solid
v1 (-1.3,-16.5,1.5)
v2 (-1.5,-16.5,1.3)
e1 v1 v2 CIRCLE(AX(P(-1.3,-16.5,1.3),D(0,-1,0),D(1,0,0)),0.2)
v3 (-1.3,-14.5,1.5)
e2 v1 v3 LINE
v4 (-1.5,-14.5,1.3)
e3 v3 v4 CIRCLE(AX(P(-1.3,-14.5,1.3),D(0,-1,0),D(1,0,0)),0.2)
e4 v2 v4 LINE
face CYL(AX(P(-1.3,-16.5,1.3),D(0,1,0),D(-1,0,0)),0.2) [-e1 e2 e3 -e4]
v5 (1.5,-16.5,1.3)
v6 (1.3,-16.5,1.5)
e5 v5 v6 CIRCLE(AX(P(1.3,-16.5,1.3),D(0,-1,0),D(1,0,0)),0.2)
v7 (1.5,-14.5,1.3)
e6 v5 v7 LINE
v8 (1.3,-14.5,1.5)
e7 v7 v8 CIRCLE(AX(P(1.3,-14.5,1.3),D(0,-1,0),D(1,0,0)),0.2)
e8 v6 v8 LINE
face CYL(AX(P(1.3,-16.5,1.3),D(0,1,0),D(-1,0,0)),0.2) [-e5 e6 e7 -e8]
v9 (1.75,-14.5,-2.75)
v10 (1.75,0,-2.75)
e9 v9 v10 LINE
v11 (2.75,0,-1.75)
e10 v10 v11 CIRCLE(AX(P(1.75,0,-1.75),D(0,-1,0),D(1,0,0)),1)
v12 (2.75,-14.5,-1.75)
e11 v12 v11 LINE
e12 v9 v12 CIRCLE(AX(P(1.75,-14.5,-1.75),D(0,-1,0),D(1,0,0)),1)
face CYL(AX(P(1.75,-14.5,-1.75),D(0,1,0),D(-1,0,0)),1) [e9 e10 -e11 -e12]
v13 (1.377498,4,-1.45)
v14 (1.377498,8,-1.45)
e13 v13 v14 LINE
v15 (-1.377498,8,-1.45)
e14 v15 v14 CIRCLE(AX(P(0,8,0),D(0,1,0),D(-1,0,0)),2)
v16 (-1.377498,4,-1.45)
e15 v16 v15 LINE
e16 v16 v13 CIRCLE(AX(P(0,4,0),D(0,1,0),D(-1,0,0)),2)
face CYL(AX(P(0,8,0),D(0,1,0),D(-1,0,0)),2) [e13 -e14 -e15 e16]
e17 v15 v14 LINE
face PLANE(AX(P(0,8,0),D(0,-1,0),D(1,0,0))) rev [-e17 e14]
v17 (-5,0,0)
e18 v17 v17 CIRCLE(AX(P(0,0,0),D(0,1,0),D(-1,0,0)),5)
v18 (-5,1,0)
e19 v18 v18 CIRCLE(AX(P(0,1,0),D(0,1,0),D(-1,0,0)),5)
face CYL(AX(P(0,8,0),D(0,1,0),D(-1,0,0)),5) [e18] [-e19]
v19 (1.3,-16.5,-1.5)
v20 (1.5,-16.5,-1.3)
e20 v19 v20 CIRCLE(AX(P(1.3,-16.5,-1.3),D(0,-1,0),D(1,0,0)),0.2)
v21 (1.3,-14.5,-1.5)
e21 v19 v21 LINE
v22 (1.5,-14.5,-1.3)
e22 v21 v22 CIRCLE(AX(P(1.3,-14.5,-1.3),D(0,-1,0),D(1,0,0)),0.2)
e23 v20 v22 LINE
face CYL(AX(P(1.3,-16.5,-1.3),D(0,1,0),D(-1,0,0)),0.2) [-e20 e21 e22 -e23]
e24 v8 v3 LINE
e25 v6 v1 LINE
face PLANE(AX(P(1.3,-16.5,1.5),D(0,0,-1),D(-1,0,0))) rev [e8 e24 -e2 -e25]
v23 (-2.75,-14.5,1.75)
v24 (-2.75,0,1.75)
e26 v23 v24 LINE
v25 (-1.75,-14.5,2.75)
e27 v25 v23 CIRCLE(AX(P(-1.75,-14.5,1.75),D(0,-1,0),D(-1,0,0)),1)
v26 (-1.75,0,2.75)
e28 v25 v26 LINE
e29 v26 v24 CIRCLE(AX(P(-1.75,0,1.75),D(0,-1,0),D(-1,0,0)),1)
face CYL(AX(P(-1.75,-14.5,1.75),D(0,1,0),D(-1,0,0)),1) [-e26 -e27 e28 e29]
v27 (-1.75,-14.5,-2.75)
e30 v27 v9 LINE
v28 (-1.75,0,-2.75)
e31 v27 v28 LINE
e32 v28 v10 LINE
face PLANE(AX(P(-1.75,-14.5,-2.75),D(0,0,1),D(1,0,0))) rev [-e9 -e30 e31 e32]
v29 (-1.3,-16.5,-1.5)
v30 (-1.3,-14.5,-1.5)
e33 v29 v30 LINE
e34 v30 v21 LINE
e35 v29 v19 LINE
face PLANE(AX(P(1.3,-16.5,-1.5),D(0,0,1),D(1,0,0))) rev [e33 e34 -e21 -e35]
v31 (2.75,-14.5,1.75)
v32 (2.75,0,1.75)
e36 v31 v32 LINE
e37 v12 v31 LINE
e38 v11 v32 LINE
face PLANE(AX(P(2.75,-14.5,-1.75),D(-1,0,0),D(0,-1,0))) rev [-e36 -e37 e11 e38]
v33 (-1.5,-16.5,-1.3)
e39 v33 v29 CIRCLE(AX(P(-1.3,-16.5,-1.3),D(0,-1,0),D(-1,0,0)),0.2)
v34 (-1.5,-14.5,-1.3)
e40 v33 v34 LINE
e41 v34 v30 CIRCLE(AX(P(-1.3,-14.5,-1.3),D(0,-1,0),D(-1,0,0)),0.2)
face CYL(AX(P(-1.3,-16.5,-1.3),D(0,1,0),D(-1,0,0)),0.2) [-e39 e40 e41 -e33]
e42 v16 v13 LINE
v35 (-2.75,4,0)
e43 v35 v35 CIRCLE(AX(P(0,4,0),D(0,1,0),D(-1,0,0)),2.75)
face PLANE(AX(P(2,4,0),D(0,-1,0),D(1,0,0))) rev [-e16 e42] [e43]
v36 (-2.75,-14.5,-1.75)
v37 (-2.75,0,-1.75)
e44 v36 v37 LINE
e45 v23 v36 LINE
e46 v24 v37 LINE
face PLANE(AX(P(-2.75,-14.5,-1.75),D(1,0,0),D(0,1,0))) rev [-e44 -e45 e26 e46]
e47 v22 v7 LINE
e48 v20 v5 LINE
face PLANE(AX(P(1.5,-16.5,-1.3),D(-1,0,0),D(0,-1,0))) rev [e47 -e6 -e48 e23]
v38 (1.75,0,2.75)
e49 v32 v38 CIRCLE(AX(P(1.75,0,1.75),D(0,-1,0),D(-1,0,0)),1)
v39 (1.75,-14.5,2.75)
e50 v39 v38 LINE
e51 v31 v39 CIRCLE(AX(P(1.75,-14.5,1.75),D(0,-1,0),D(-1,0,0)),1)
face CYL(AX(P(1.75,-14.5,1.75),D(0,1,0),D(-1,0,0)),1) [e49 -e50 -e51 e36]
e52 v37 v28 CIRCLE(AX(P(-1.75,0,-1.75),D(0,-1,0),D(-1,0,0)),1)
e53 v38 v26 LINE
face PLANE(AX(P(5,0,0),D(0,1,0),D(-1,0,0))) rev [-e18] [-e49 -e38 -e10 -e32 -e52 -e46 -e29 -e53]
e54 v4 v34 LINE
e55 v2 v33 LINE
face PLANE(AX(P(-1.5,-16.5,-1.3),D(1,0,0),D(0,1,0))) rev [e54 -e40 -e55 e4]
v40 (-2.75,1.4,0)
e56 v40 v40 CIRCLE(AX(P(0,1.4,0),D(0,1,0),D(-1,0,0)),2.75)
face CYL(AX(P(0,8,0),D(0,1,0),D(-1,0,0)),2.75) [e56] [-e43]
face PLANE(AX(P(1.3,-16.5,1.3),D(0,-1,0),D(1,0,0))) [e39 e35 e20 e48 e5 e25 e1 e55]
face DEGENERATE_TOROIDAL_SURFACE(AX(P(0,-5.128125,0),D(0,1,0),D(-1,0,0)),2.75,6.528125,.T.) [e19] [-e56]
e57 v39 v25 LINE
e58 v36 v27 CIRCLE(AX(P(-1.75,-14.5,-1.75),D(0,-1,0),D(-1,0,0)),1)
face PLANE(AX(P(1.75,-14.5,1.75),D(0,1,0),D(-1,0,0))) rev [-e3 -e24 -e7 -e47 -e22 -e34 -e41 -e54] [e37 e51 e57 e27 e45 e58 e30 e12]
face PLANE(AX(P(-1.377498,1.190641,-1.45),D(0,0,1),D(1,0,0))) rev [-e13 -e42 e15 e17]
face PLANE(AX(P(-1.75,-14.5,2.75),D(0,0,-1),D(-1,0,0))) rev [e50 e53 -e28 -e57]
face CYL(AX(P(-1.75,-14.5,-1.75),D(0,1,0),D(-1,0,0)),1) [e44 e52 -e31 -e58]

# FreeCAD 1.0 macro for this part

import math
import FreeCAD as App
import Part
import Sketcher
from FreeCAD import Vector

doc = App.newDocument("Part")
body = doc.addObject("PartDesign::Body", "Body")

# Sketch on XY plane
sketch1 = body.newObject("Sketcher::SketchObject", "Sketch")
sketch1.AttachmentSupport = (doc.getObject("XY_Plane"), [""])
sketch1.MapMode = "FlatFace"
sketch1.addGeometry(Part.LineSegment(Vector(2, 8, 0), Vector(0, 8, 0)), False)
sketch1.addGeometry(Part.LineSegment(Vector(0, 8, 0), Vector(0, 0, 0)), False)
sketch1.addGeometry(Part.LineSegment(Vector(0, 0, 0), Vector(5, 0, 0)), False)
sketch1.addGeometry(Part.LineSegment(Vector(5, 0, 0), Vector(5, 1, 0)), False)
sketch1.addGeometry(Part.ArcOfCircle(Part.Circle(Vector(2.7, -5.1, 0), Vector(0, 0, 1), 6.5), math.radians(70), math.radians(90)), False)
sketch1.addGeometry(Part.LineSegment(Vector(2.8, 1.4, 0), Vector(2.8, 4, 0)), False)
sketch1.addGeometry(Part.LineSegment(Vector(2.8, 4, 0), Vector(2, 4, 0)), False)
sketch1.addGeometry(Part.LineSegment(Vector(2, 4, 0), Vector(2, 8, 0)), False)
sketch1.addConstraint(Sketcher.Constraint("Coincident", 0, 2, 1, 1))
sketch1.addConstraint(Sketcher.Constraint("Coincident", 1, 2, 2, 1))
sketch1.addConstraint(Sketcher.Constraint("Coincident", 2, 2, 3, 1))
sketch1.addConstraint(Sketcher.Constraint("Coincident", 3, 2, 4, 1))
sketch1.addConstraint(Sketcher.Constraint("Coincident", 4, 2, 5, 1))
sketch1.addConstraint(Sketcher.Constraint("Coincident", 5, 2, 6, 1))
sketch1.addConstraint(Sketcher.Constraint("Coincident", 6, 2, 7, 1))
sketch1.addConstraint(Sketcher.Constraint("Coincident", 7, 2, 0, 1))
sketch1.addConstraint(Sketcher.Constraint("Horizontal", 0))
sketch1.addConstraint(Sketcher.Constraint("Vertical", 1))
sketch1.addConstraint(Sketcher.Constraint("Horizontal", 2))
sketch1.addConstraint(Sketcher.Constraint("Vertical", 3))
sketch1.addConstraint(Sketcher.Constraint("Vertical", 5))
sketch1.addConstraint(Sketcher.Constraint("Horizontal", 6))
sketch1.addConstraint(Sketcher.Constraint("Vertical", 7))
sketch1.addConstraint(Sketcher.Constraint("Coincident", 1, 2, -1, 1))
sketch1.addConstraint(Sketcher.Constraint("DistanceX", 0, 2, 0, 1, 2.0))
sketch1.addConstraint(Sketcher.Constraint("DistanceX", 2, 1, 2, 2, 5.0))
sketch1.addConstraint(Sketcher.Constraint("DistanceY", 1, 2, 1, 1, 8.0))
sketch1.addConstraint(Sketcher.Constraint("DistanceY", 3, 1, 3, 2, 1.0))
sketch1.addConstraint(Sketcher.Constraint("DistanceY", 7, 1, 7, 2, 4.0))
sketch1.addConstraint(Sketcher.Constraint("DistanceY", 5, 1, 5, 2, 2.6))
sketch1.addConstraint(Sketcher.Constraint("DistanceX", 6, 2, 6, 1, 0.75))
sketch1.addConstraint(Sketcher.Constraint("DistanceX", -1, 1, 4, 3, 2.75))
revolution = body.newObject("PartDesign::Revolution", "Revolution")
revolution.Profile = sketch1
revolution.ReferenceAxis = (sketch1, ["V_Axis"])
revolution.Angle = 360

# Sketch on XZ plane
sketch2 = body.newObject("Sketcher::SketchObject", "Sketch001")
sketch2.AttachmentSupport = (doc.getObject("XZ_Plane"), [""])
sketch2.MapMode = "FlatFace"
sketch2.AttachmentOffset = App.Placement(Vector(0, 0, -4), App.Rotation())
sketch2.addGeometry(Part.LineSegment(Vector(-1.4, -1.4, 0), Vector(1.4, -1.4, 0)), False)
sketch2.addGeometry(Part.ArcOfCircle(Part.Circle(Vector(0, 0, 0), Vector(0, 0, 1), 2), math.radians(-134), math.radians(-46)), False)
sketch2.addConstraint(Sketcher.Constraint("Coincident", 0, 1, 1, 1))
sketch2.addConstraint(Sketcher.Constraint("Coincident", 1, 2, 0, 2))
sketch2.addConstraint(Sketcher.Constraint("Horizontal", 0))
sketch2.addConstraint(Sketcher.Constraint("Coincident", 1, 3, -1, 1))
sketch2.addConstraint(Sketcher.Constraint("Radius", 1, 2.0))
sketch2.addConstraint(Sketcher.Constraint("DistanceY", 0, 1, -1, 1, 1.45))
pocket1 = body.newObject("PartDesign::Pocket", "Pocket")
pocket1.Profile = sketch2
pocket1.Length = 4

# Sketch on XZ plane
sketch3 = body.newObject("Sketcher::SketchObject", "Sketch002")
sketch3.AttachmentSupport = (doc.getObject("XZ_Plane"), [""])
sketch3.MapMode = "FlatFace"
sketch3.addGeometry(Part.LineSegment(Vector(-1.8, -2.8, 0), Vector(1.8, -2.8, 0)), False)
sketch3.addGeometry(Part.ArcOfCircle(Part.Circle(Vector(1.7, -1.7, 0), Vector(0, 0, 1), 1), math.radians(-90), math.radians(0)), False)
sketch3.addGeometry(Part.LineSegment(Vector(2.8, -1.8, 0), Vector(2.8, 1.8, 0)), False)
sketch3.addGeometry(Part.ArcOfCircle(Part.Circle(Vector(1.7, 1.7, 0), Vector(0, 0, 1), 1), math.radians(0), math.radians(90)), False)
sketch3.addGeometry(Part.LineSegment(Vector(1.8, 2.8, 0), Vector(-1.8, 2.8, 0)), False)
sketch3.addGeometry(Part.ArcOfCircle(Part.Circle(Vector(-1.7, 1.7, 0), Vector(0, 0, 1), 1), math.radians(90), math.radians(180)), False)
sketch3.addGeometry(Part.LineSegment(Vector(-2.8, 1.8, 0), Vector(-2.8, -1.8, 0)), False)
sketch3.addGeometry(Part.ArcOfCircle(Part.Circle(Vector(-1.7, -1.7, 0), Vector(0, 0, 1), 1), math.radians(-180), math.radians(-90)), False)
sketch3.addConstraint(Sketcher.Constraint("Tangent", 0, 2, 1, 1))
sketch3.addConstraint(Sketcher.Constraint("Tangent", 1, 2, 2, 1))
sketch3.addConstraint(Sketcher.Constraint("Tangent", 2, 2, 3, 1))
sketch3.addConstraint(Sketcher.Constraint("Tangent", 3, 2, 4, 1))
sketch3.addConstraint(Sketcher.Constraint("Tangent", 4, 2, 5, 1))
sketch3.addConstraint(Sketcher.Constraint("Tangent", 5, 2, 6, 1))
sketch3.addConstraint(Sketcher.Constraint("Tangent", 6, 2, 7, 1))
sketch3.addConstraint(Sketcher.Constraint("Tangent", 7, 2, 0, 1))
sketch3.addConstraint(Sketcher.Constraint("Horizontal", 0))
sketch3.addConstraint(Sketcher.Constraint("Vertical", 2))
sketch3.addConstraint(Sketcher.Constraint("Horizontal", 4))
sketch3.addConstraint(Sketcher.Constraint("Vertical", 6))
sketch3.addConstraint(Sketcher.Constraint("Equal", 1, 3))
sketch3.addConstraint(Sketcher.Constraint("Equal", 3, 5))
sketch3.addConstraint(Sketcher.Constraint("Equal", 5, 7))
sketch3.addConstraint(Sketcher.Constraint("Symmetric", 1, 3, 5, 3, -1, 1))
sketch3.addConstraint(Sketcher.Constraint("Equal", 4, 2))
sketch3.addConstraint(Sketcher.Constraint("Radius", 1, 1.0))
sketch3.addConstraint(Sketcher.Constraint("DistanceX", 0, 1, 0, 2, 3.5))
pad1 = body.newObject("PartDesign::Pad", "Pad")
pad1.Profile = sketch3
pad1.Length = 14.5

# Sketch on XZ plane
sketch4 = body.newObject("Sketcher::SketchObject", "Sketch003")
sketch4.AttachmentSupport = (doc.getObject("XZ_Plane"), [""])
sketch4.MapMode = "FlatFace"
sketch4.AttachmentOffset = App.Placement(Vector(0, 0, 14.5), App.Rotation())
sketch4.addGeometry(Part.LineSegment(Vector(-1.3, -1.5, 0), Vector(1.3, -1.5, 0)), False)
sketch4.addGeometry(Part.ArcOfCircle(Part.Circle(Vector(1.3, -1.3, 0), Vector(0, 0, 1), 0.2), math.radians(-90), math.radians(0)), False)
sketch4.addGeometry(Part.LineSegment(Vector(1.5, -1.3, 0), Vector(1.5, 1.3, 0)), False)
sketch4.addGeometry(Part.ArcOfCircle(Part.Circle(Vector(1.3, 1.3, 0), Vector(0, 0, 1), 0.2), math.radians(0), math.radians(90)), False)
sketch4.addGeometry(Part.LineSegment(Vector(1.3, 1.5, 0), Vector(-1.3, 1.5, 0)), False)
sketch4.addGeometry(Part.ArcOfCircle(Part.Circle(Vector(-1.3, 1.3, 0), Vector(0, 0, 1), 0.2), math.radians(90), math.radians(180)), False)
sketch4.addGeometry(Part.LineSegment(Vector(-1.5, 1.3, 0), Vector(-1.5, -1.3, 0)), False)
sketch4.addGeometry(Part.ArcOfCircle(Part.Circle(Vector(-1.3, -1.3, 0), Vector(0, 0, 1), 0.2), math.radians(-180), math.radians(-90)), False)
sketch4.addConstraint(Sketcher.Constraint("Tangent", 0, 2, 1, 1))
sketch4.addConstraint(Sketcher.Constraint("Tangent", 1, 2, 2, 1))
sketch4.addConstraint(Sketcher.Constraint("Tangent", 2, 2, 3, 1))
sketch4.addConstraint(Sketcher.Constraint("Tangent", 3, 2, 4, 1))
sketch4.addConstraint(Sketcher.Constraint("Tangent", 4, 2, 5, 1))
sketch4.addConstraint(Sketcher.Constraint("Tangent", 5, 2, 6, 1))
sketch4.addConstraint(Sketcher.Constraint("Tangent", 6, 2, 7, 1))
sketch4.addConstraint(Sketcher.Constraint("Tangent", 7, 2, 0, 1))
sketch4.addConstraint(Sketcher.Constraint("Horizontal", 0))
sketch4.addConstraint(Sketcher.Constraint("Vertical", 2))
sketch4.addConstraint(Sketcher.Constraint("Horizontal", 4))
sketch4.addConstraint(Sketcher.Constraint("Vertical", 6))
sketch4.addConstraint(Sketcher.Constraint("Equal", 1, 3))
sketch4.addConstraint(Sketcher.Constraint("Equal", 3, 5))
sketch4.addConstraint(Sketcher.Constraint("Equal", 5, 7))
sketch4.addConstraint(Sketcher.Constraint("Symmetric", 1, 3, 5, 3, -1, 1))
sketch4.addConstraint(Sketcher.Constraint("Equal", 4, 2))
sketch4.addConstraint(Sketcher.Constraint("Radius", 1, 0.2))
sketch4.addConstraint(Sketcher.Constraint("DistanceX", 0, 1, 0, 2, 2.6))
pad2 = body.newObject("PartDesign::Pad", "Pad001")
pad2.Profile = sketch4
pad2.Length = 2

doc.recompute()
